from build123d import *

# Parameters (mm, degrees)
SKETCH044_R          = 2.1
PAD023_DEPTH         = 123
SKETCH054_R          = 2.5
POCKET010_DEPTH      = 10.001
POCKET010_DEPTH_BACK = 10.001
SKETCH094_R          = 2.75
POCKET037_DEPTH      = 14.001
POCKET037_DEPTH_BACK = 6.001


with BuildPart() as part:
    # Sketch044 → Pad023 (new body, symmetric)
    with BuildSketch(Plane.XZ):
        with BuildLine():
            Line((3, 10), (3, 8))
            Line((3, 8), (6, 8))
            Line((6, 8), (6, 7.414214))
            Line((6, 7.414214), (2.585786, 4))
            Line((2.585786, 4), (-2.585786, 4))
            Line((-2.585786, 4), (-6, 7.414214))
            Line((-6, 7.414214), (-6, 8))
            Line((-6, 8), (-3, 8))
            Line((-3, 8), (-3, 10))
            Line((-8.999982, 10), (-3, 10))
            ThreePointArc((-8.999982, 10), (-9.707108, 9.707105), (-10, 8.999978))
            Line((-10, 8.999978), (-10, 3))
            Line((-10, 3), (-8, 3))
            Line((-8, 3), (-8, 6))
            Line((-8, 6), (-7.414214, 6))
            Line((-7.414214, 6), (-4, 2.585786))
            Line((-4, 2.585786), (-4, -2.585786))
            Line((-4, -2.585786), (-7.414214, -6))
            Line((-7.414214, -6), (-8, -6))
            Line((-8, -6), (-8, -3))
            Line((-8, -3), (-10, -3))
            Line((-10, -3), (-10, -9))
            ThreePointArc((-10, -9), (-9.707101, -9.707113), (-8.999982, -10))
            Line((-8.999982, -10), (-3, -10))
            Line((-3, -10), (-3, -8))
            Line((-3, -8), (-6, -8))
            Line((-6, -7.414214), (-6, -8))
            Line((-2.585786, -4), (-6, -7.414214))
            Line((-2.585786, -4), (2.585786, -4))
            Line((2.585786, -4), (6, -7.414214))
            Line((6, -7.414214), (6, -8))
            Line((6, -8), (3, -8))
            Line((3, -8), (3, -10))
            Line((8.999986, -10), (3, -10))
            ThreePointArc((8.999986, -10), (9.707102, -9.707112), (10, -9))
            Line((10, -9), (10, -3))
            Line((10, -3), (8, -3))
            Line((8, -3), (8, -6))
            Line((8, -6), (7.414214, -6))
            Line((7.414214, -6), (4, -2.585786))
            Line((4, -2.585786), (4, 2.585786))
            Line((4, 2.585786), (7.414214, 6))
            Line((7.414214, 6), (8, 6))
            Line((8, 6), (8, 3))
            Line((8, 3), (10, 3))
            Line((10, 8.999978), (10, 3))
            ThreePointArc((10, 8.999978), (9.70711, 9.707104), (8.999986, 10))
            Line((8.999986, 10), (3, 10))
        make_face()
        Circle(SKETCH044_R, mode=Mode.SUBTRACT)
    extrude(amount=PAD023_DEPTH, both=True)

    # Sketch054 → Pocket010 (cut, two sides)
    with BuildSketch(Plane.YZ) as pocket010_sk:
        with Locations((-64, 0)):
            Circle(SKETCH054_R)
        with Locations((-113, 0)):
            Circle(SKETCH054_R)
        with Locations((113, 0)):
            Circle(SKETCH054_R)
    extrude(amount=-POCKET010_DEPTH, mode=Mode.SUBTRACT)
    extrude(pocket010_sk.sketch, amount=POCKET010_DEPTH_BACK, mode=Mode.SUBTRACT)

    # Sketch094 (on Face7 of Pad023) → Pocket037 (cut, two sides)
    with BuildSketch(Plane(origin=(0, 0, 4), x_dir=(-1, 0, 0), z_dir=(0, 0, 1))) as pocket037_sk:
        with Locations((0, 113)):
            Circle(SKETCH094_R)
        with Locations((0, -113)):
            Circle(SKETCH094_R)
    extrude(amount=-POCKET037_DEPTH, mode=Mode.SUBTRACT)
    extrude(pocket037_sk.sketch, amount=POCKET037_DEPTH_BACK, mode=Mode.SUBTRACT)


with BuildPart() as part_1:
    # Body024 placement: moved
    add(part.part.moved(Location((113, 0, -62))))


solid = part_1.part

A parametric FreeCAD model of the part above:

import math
import FreeCAD as App
import Part
import Sketcher

doc = App.newDocument("Part")
body = doc.addObject("PartDesign::Body", "Body")

# Sketch on XZ plane
sketch1 = doc.addObject("Sketcher::SketchObject", "Sketch")
body.addObject(sketch1)
sketch1.AttachmentSupport = (doc.XZ_Plane, [""])
sketch1.MapMode = "FlatFace"
sketch1.addGeometry([
    Part.LineSegment(App.Vector(3, 10, 0), App.Vector(3, 8, 0)),  # 0
    Part.LineSegment(App.Vector(3, 8, 0), App.Vector(6, 8, 0)),  # 1
    Part.LineSegment(App.Vector(6, 8, 0), App.Vector(6, 7.4, 0)),  # 2
    Part.LineSegment(App.Vector(6, 7.4, 0), App.Vector(2.6, 4, 0)),  # 3
    Part.LineSegment(App.Vector(2.6, 4, 0), App.Vector(-2.6, 4, 0)),  # 4
    Part.LineSegment(App.Vector(-2.6, 4, 0), App.Vector(-6, 7.4, 0)),  # 5
    Part.LineSegment(App.Vector(-6, 7.4, 0), App.Vector(-6, 8, 0)),  # 6
    Part.LineSegment(App.Vector(-6, 8, 0), App.Vector(-3, 8, 0)),  # 7
    Part.LineSegment(App.Vector(-3, 8, 0), App.Vector(-3, 10, 0)),  # 8
    Part.LineSegment(App.Vector(-3, 10, 0), App.Vector(-9, 10, 0)),  # 9
    Part.ArcOfCircle(Part.Circle(App.Vector(-9, 9, 0), App.Vector(0, 0, 1), 1), math.radians(90), math.radians(180)),  # 10
    Part.LineSegment(App.Vector(-10, 9, 0), App.Vector(-10, 3, 0)),  # 11
    Part.LineSegment(App.Vector(-10, 3, 0), App.Vector(-8, 3, 0)),  # 12
    Part.LineSegment(App.Vector(-8, 3, 0), App.Vector(-8, 6, 0)),  # 13
    Part.LineSegment(App.Vector(-8, 6, 0), App.Vector(-7.4, 6, 0)),  # 14
    Part.LineSegment(App.Vector(-7.4, 6, 0), App.Vector(-4, 2.6, 0)),  # 15
    Part.LineSegment(App.Vector(-4, 2.6, 0), App.Vector(-4, -2.6, 0)),  # 16
    Part.LineSegment(App.Vector(-4, -2.6, 0), App.Vector(-7.4, -6, 0)),  # 17
    Part.LineSegment(App.Vector(-7.4, -6, 0), App.Vector(-8, -6, 0)),  # 18
    Part.LineSegment(App.Vector(-8, -6, 0), App.Vector(-8, -3, 0)),  # 19
    Part.LineSegment(App.Vector(-8, -3, 0), App.Vector(-10, -3, 0)),  # 20
    Part.LineSegment(App.Vector(-10, -3, 0), App.Vector(-10, -9, 0)),  # 21
    Part.ArcOfCircle(Part.Circle(App.Vector(-9, -9, 0), App.Vector(0, 0, 1), 1), math.radians(180), math.radians(270)),  # 22
    Part.LineSegment(App.Vector(-9, -10, 0), App.Vector(-3, -10, 0)),  # 23
    Part.LineSegment(App.Vector(-3, -10, 0), App.Vector(-3, -8, 0)),  # 24
    Part.LineSegment(App.Vector(-3, -8, 0), App.Vector(-6, -8, 0)),  # 25
    Part.LineSegment(App.Vector(-6, -8, 0), App.Vector(-6, -7.4, 0)),  # 26
    Part.LineSegment(App.Vector(-6, -7.4, 0), App.Vector(-2.6, -4, 0)),  # 27
    Part.LineSegment(App.Vector(-2.6, -4, 0), App.Vector(2.6, -4, 0)),  # 28
    Part.LineSegment(App.Vector(2.6, -4, 0), App.Vector(6, -7.4, 0)),  # 29
    Part.LineSegment(App.Vector(6, -7.4, 0), App.Vector(6, -8, 0)),  # 30
    Part.LineSegment(App.Vector(6, -8, 0), App.Vector(3, -8, 0)),  # 31
    Part.LineSegment(App.Vector(3, -8, 0), App.Vector(3, -10, 0)),  # 32
    Part.LineSegment(App.Vector(3, -10, 0), App.Vector(9, -10, 0)),  # 33
    Part.ArcOfCircle(Part.Circle(App.Vector(9, -9, 0), App.Vector(0, 0, 1), 1), math.radians(-90), math.radians(0)),  # 34
    Part.LineSegment(App.Vector(10, -9, 0), App.Vector(10, -3, 0)),  # 35
    Part.LineSegment(App.Vector(10, -3, 0), App.Vector(8, -3, 0)),  # 36
    Part.LineSegment(App.Vector(8, -3, 0), App.Vector(8, -6, 0)),  # 37
    Part.LineSegment(App.Vector(8, -6, 0), App.Vector(7.4, -6, 0)),  # 38
    Part.LineSegment(App.Vector(7.4, -6, 0), App.Vector(4, -2.6, 0)),  # 39
    Part.LineSegment(App.Vector(4, -2.6, 0), App.Vector(4, 2.6, 0)),  # 40
    Part.LineSegment(App.Vector(4, 2.6, 0), App.Vector(7.4, 6, 0)),  # 41
    Part.LineSegment(App.Vector(7.4, 6, 0), App.Vector(8, 6, 0)),  # 42
    Part.LineSegment(App.Vector(8, 6, 0), App.Vector(8, 3, 0)),  # 43
    Part.LineSegment(App.Vector(8, 3, 0), App.Vector(10, 3, 0)),  # 44
    Part.LineSegment(App.Vector(10, 3, 0), App.Vector(10, 9, 0)),  # 45
    Part.ArcOfCircle(Part.Circle(App.Vector(9, 9, 0), App.Vector(0, 0, 1), 1), math.radians(0), math.radians(90)),  # 46
    Part.LineSegment(App.Vector(9, 10, 0), App.Vector(3, 10, 0)),  # 47
    Part.Circle(App.Vector(0, 0, 0), App.Vector(0, 0, 1), 2.1),  # 48
], False)
sketch1.addConstraint([
    Sketcher.Constraint("Coincident", 0, 2, 1, 1),
    Sketcher.Constraint("Coincident", 1, 2, 2, 1),
    Sketcher.Constraint("Coincident", 2, 2, 3, 1),
    Sketcher.Constraint("Coincident", 3, 2, 4, 1),
    Sketcher.Constraint("Coincident", 4, 2, 5, 1),
    Sketcher.Constraint("Coincident", 5, 2, 6, 1),
    Sketcher.Constraint("Coincident", 6, 2, 7, 1),
    Sketcher.Constraint("Coincident", 7, 2, 8, 1),
    Sketcher.Constraint("Coincident", 8, 2, 9, 1),
    Sketcher.Constraint("Coincident", 9, 2, 10, 1),
    Sketcher.Constraint("Coincident", 10, 2, 11, 1),
    Sketcher.Constraint("Coincident", 11, 2, 12, 1),
    Sketcher.Constraint("Coincident", 12, 2, 13, 1),
    Sketcher.Constraint("Coincident", 13, 2, 14, 1),
    Sketcher.Constraint("Coincident", 14, 2, 15, 1),
    Sketcher.Constraint("Coincident", 15, 2, 16, 1),
    Sketcher.Constraint("Coincident", 16, 2, 17, 1),
    Sketcher.Constraint("Coincident", 17, 2, 18, 1),
    Sketcher.Constraint("Coincident", 18, 2, 19, 1),
    Sketcher.Constraint("Coincident", 19, 2, 20, 1),
    Sketcher.Constraint("Coincident", 20, 2, 21, 1),
    Sketcher.Constraint("Tangent", 21, 2, 22, 1),
    Sketcher.Constraint("Coincident", 22, 2, 23, 1),
    Sketcher.Constraint("Coincident", 23, 2, 24, 1),
    Sketcher.Constraint("Coincident", 24, 2, 25, 1),
    Sketcher.Constraint("Coincident", 25, 2, 26, 1),
    Sketcher.Constraint("Coincident", 26, 2, 27, 1),
    Sketcher.Constraint("Coincident", 27, 2, 28, 1),
    Sketcher.Constraint("Coincident", 28, 2, 29, 1),
    Sketcher.Constraint("Coincident", 29, 2, 30, 1),
    Sketcher.Constraint("Coincident", 30, 2, 31, 1),
    Sketcher.Constraint("Coincident", 31, 2, 32, 1),
    Sketcher.Constraint("Coincident", 32, 2, 33, 1),
    Sketcher.Constraint("Coincident", 33, 2, 34, 1),
    Sketcher.Constraint("Tangent", 34, 2, 35, 1),
    Sketcher.Constraint("Coincident", 35, 2, 36, 1),
    Sketcher.Constraint("Coincident", 36, 2, 37, 1),
    Sketcher.Constraint("Coincident", 37, 2, 38, 1),
    Sketcher.Constraint("Coincident", 38, 2, 39, 1),
    Sketcher.Constraint("Coincident", 39, 2, 40, 1),
    Sketcher.Constraint("Coincident", 40, 2, 41, 1),
    Sketcher.Constraint("Coincident", 41, 2, 42, 1),
    Sketcher.Constraint("Coincident", 42, 2, 43, 1),
    Sketcher.Constraint("Coincident", 43, 2, 44, 1),
    Sketcher.Constraint("Coincident", 44, 2, 45, 1),
    Sketcher.Constraint("Coincident", 45, 2, 46, 1),
    Sketcher.Constraint("Coincident", 46, 2, 47, 1),
    Sketcher.Constraint("Coincident", 47, 2, 0, 1),
    Sketcher.Constraint("Vertical", 0),
    Sketcher.Constraint("Horizontal", 1),
    Sketcher.Constraint("Vertical", 2),
    Sketcher.Constraint("Horizontal", 4),
    Sketcher.Constraint("Vertical", 6),
    Sketcher.Constraint("Horizontal", 7),
    Sketcher.Constraint("Vertical", 8),
    Sketcher.Constraint("Horizontal", 9),
    Sketcher.Constraint("Vertical", 11),
    Sketcher.Constraint("Horizontal", 12),
    Sketcher.Constraint("Vertical", 13),
    Sketcher.Constraint("Horizontal", 14),
    Sketcher.Constraint("Vertical", 16),
    Sketcher.Constraint("Horizontal", 18),
    Sketcher.Constraint("Vertical", 19),
    Sketcher.Constraint("Horizontal", 20),
    Sketcher.Constraint("Vertical", 21),
    Sketcher.Constraint("Horizontal", 23),
    Sketcher.Constraint("Vertical", 24),
    Sketcher.Constraint("Horizontal", 25),
    Sketcher.Constraint("Vertical", 26),
    Sketcher.Constraint("Horizontal", 28),
    Sketcher.Constraint("Vertical", 30),
    Sketcher.Constraint("Horizontal", 31),
    Sketcher.Constraint("Vertical", 32),
    Sketcher.Constraint("Horizontal", 33),
    Sketcher.Constraint("Vertical", 35),
    Sketcher.Constraint("Horizontal", 36),
    Sketcher.Constraint("Vertical", 37),
    Sketcher.Constraint("Horizontal", 38),
    Sketcher.Constraint("Vertical", 40),
    Sketcher.Constraint("Horizontal", 42),
    Sketcher.Constraint("Vertical", 43),
    Sketcher.Constraint("Horizontal", 44),
    Sketcher.Constraint("Vertical", 45),
    Sketcher.Constraint("Horizontal", 47),
    Sketcher.Constraint("Coincident", 48, 3, -1, 1),
    Sketcher.Constraint("Equal", 10, 22),
    Sketcher.Constraint("Equal", 22, 34),
    Sketcher.Constraint("Equal", 34, 46),
    Sketcher.Constraint("Symmetric", 10, 3, 34, 3, -1, 1),
    Sketcher.Constraint("Symmetric", 22, 3, 46, 3, -1, 1),
    Sketcher.Constraint("Symmetric", 0, 2, 24, 2, -1, 1),
    Sketcher.Constraint("Symmetric", 2, 2, 26, 2, -1, 1),
    Sketcher.Constraint("Symmetric", 3, 2, 27, 2, -1, 1),
    Sketcher.Constraint("Symmetric", 5, 2, 29, 2, -1, 1),
    Sketcher.Constraint("Symmetric", 7, 2, 31, 2, -1, 1),
    Sketcher.Constraint("Symmetric", 12, 2, 36, 2, -1, 1),
    Sketcher.Constraint("Symmetric", 14, 2, 38, 2, -1, 1),
    Sketcher.Constraint("Symmetric", 15, 2, 39, 2, -1, 1),
    Sketcher.Constraint("Symmetric", 17, 2, 41, 2, -1, 1),
    Sketcher.Constraint("Symmetric", 19, 2, 43, 2, -1, 1),
    Sketcher.Constraint("Symmetric", 22, 3, 34, 3, -2),
    Sketcher.Constraint("Symmetric", 2, 2, 5, 2, -2),
    Sketcher.Constraint("Symmetric", 0, 2, 7, 2, -2),
    Sketcher.Constraint("Symmetric", 19, 2, 36, 2, -2),
    Sketcher.Constraint("Symmetric", 17, 2, 38, 2, -2),
    Sketcher.Constraint("Perpendicular", 3, 5),
    Sketcher.Constraint("Parallel", 5, 15),
    Sketcher.Constraint("Perpendicular", 15, 17),
    Sketcher.Constraint("Perpendicular", 27, 29),
    Sketcher.Constraint("Perpendicular", 39, 41),
    Sketcher.Constraint("Horizontal", 16, 2, 39, 2),
    Sketcher.Constraint("Horizontal", 10, 2, 45, 2),
    Sketcher.Constraint("Vertical", 9, 2, 22, 2),
    Sketcher.Constraint("Vertical", 33, 2, 46, 2),
    Sketcher.Constraint("Equal", 44, 0),
    Sketcher.Constraint("Equal", 42, 2),
    Sketcher.Constraint("Equal", 31, 13),
    Sketcher.Constraint("Equal", 28, 16),
    Sketcher.Constraint("Equal", 5, 15),
    Sketcher.Constraint("Radius", 10, 1.000001),
    Sketcher.Constraint("Diameter", 48, 4.2),
    Sketcher.Constraint("DistanceX", 1, 1, 1, 2, 3.0),
    Sketcher.Constraint("DistanceX", 12, 1, 12, 2, 2.0),
    Sketcher.Constraint("DistanceY", 21, 2, 21, 1, 6.0),
    Sketcher.Constraint("DistanceX", 10, 3, -1, 1, 8.999999),
    Sketcher.Constraint("DistanceY", -1, 1, 10, 3, 8.999999),
    Sketcher.Constraint("DistanceY", -1, 1, 3, 2, 4.0),
    Sketcher.Constraint("DistanceX", 9, 2, 9, 1, 5.999982),
    Sketcher.Constraint("DistanceY", 11, 2, 11, 1, 5.999978),
    Sketcher.Constraint("DistanceX", 4, 2, 4, 1, 5.171572),
    Sketcher.Constraint("DistanceX", 33, 1, 33, 2, 5.999986),
])
pad1 = doc.addObject("PartDesign::Pad", "Pad")
body.addObject(pad1)
pad1.Profile = sketch1
pad1.Length = 246
pad1.Midplane = True

# Sketch on YZ plane
sketch2 = doc.addObject("Sketcher::SketchObject", "Sketch001")
body.addObject(sketch2)
sketch2.AttachmentSupport = (doc.YZ_Plane, [""])
sketch2.MapMode = "FlatFace"
sketch2.addGeometry([
    Part.Circle(App.Vector(-64, 0, 0), App.Vector(0, 0, 1), 2.5),
    Part.Circle(App.Vector(-113, 0, 0), App.Vector(0, 0, 1), 2.5),
    Part.Circle(App.Vector(113, 0, 0), App.Vector(0, 0, 1), 2.5),
], False)
sketch2.addConstraint([
    Sketcher.Constraint("Equal", 0, 1),
    Sketcher.Constraint("Equal", 1, 2),
    Sketcher.Constraint("Symmetric", 1, 3, 2, 3, -1, 1),
    Sketcher.Constraint("PointOnObject", 0, 3, -1),
    Sketcher.Constraint("PointOnObject", 1, 3, -1),
    Sketcher.Constraint("Diameter", 0, 5.0),
    Sketcher.Constraint("DistanceX", 0, 3, -1, 1, 64.0),
    Sketcher.Constraint("DistanceX", 1, 3, -1, 1, 113.0),
])
pocket1 = doc.addObject("PartDesign::Pocket", "Pocket")
body.addObject(pocket1)
pocket1.Profile = sketch2
pocket1.Type = "ThroughAll"
pocket1.Midplane = True

# Sketch on XY plane
sketch3 = doc.addObject("Sketcher::SketchObject", "Sketch002")
body.addObject(sketch3)
sketch3.AttachmentSupport = (doc.XY_Plane, [""])
sketch3.MapMode = "FlatFace"
sketch3.AttachmentOffset = App.Placement(App.Vector(0, 0, 4), App.Rotation())
sketch3.addGeometry([
    Part.Circle(App.Vector(0, -113, 0), App.Vector(0, 0, 1), 2.8),
    Part.Circle(App.Vector(0, 113, 0), App.Vector(0, 0, 1), 2.8),
], False)
sketch3.addConstraint([
    Sketcher.Constraint("Equal", 0, 1),
    Sketcher.Constraint("Symmetric", 0, 3, 1, 3, -1, 1),
    Sketcher.Constraint("PointOnObject", 0, 3, -2),
    Sketcher.Constraint("Diameter", 0, 5.5),
    Sketcher.Constraint("DistanceY", 0, 3, -1, 1, 113.0),
])
pocket2 = doc.addObject("PartDesign::Pocket", "Pocket001")
body.addObject(pocket2)
pocket2.Profile = sketch3
pocket2.Type = "ThroughAll"
pocket2.Midplane = True
body2 = doc.addObject("PartDesign::Body", "Body001")
doc.recompute()

body.Placement = App.Placement(App.Vector(113, 0, -62), App.Rotation(App.Vector(0, 0, 1), 0))
boolean = doc.addObject("PartDesign::Boolean", "Boolean")
body2.addObject(boolean)
boolean.Type = "Fuse"
boolean.addObjects([body])

doc.recompute()
